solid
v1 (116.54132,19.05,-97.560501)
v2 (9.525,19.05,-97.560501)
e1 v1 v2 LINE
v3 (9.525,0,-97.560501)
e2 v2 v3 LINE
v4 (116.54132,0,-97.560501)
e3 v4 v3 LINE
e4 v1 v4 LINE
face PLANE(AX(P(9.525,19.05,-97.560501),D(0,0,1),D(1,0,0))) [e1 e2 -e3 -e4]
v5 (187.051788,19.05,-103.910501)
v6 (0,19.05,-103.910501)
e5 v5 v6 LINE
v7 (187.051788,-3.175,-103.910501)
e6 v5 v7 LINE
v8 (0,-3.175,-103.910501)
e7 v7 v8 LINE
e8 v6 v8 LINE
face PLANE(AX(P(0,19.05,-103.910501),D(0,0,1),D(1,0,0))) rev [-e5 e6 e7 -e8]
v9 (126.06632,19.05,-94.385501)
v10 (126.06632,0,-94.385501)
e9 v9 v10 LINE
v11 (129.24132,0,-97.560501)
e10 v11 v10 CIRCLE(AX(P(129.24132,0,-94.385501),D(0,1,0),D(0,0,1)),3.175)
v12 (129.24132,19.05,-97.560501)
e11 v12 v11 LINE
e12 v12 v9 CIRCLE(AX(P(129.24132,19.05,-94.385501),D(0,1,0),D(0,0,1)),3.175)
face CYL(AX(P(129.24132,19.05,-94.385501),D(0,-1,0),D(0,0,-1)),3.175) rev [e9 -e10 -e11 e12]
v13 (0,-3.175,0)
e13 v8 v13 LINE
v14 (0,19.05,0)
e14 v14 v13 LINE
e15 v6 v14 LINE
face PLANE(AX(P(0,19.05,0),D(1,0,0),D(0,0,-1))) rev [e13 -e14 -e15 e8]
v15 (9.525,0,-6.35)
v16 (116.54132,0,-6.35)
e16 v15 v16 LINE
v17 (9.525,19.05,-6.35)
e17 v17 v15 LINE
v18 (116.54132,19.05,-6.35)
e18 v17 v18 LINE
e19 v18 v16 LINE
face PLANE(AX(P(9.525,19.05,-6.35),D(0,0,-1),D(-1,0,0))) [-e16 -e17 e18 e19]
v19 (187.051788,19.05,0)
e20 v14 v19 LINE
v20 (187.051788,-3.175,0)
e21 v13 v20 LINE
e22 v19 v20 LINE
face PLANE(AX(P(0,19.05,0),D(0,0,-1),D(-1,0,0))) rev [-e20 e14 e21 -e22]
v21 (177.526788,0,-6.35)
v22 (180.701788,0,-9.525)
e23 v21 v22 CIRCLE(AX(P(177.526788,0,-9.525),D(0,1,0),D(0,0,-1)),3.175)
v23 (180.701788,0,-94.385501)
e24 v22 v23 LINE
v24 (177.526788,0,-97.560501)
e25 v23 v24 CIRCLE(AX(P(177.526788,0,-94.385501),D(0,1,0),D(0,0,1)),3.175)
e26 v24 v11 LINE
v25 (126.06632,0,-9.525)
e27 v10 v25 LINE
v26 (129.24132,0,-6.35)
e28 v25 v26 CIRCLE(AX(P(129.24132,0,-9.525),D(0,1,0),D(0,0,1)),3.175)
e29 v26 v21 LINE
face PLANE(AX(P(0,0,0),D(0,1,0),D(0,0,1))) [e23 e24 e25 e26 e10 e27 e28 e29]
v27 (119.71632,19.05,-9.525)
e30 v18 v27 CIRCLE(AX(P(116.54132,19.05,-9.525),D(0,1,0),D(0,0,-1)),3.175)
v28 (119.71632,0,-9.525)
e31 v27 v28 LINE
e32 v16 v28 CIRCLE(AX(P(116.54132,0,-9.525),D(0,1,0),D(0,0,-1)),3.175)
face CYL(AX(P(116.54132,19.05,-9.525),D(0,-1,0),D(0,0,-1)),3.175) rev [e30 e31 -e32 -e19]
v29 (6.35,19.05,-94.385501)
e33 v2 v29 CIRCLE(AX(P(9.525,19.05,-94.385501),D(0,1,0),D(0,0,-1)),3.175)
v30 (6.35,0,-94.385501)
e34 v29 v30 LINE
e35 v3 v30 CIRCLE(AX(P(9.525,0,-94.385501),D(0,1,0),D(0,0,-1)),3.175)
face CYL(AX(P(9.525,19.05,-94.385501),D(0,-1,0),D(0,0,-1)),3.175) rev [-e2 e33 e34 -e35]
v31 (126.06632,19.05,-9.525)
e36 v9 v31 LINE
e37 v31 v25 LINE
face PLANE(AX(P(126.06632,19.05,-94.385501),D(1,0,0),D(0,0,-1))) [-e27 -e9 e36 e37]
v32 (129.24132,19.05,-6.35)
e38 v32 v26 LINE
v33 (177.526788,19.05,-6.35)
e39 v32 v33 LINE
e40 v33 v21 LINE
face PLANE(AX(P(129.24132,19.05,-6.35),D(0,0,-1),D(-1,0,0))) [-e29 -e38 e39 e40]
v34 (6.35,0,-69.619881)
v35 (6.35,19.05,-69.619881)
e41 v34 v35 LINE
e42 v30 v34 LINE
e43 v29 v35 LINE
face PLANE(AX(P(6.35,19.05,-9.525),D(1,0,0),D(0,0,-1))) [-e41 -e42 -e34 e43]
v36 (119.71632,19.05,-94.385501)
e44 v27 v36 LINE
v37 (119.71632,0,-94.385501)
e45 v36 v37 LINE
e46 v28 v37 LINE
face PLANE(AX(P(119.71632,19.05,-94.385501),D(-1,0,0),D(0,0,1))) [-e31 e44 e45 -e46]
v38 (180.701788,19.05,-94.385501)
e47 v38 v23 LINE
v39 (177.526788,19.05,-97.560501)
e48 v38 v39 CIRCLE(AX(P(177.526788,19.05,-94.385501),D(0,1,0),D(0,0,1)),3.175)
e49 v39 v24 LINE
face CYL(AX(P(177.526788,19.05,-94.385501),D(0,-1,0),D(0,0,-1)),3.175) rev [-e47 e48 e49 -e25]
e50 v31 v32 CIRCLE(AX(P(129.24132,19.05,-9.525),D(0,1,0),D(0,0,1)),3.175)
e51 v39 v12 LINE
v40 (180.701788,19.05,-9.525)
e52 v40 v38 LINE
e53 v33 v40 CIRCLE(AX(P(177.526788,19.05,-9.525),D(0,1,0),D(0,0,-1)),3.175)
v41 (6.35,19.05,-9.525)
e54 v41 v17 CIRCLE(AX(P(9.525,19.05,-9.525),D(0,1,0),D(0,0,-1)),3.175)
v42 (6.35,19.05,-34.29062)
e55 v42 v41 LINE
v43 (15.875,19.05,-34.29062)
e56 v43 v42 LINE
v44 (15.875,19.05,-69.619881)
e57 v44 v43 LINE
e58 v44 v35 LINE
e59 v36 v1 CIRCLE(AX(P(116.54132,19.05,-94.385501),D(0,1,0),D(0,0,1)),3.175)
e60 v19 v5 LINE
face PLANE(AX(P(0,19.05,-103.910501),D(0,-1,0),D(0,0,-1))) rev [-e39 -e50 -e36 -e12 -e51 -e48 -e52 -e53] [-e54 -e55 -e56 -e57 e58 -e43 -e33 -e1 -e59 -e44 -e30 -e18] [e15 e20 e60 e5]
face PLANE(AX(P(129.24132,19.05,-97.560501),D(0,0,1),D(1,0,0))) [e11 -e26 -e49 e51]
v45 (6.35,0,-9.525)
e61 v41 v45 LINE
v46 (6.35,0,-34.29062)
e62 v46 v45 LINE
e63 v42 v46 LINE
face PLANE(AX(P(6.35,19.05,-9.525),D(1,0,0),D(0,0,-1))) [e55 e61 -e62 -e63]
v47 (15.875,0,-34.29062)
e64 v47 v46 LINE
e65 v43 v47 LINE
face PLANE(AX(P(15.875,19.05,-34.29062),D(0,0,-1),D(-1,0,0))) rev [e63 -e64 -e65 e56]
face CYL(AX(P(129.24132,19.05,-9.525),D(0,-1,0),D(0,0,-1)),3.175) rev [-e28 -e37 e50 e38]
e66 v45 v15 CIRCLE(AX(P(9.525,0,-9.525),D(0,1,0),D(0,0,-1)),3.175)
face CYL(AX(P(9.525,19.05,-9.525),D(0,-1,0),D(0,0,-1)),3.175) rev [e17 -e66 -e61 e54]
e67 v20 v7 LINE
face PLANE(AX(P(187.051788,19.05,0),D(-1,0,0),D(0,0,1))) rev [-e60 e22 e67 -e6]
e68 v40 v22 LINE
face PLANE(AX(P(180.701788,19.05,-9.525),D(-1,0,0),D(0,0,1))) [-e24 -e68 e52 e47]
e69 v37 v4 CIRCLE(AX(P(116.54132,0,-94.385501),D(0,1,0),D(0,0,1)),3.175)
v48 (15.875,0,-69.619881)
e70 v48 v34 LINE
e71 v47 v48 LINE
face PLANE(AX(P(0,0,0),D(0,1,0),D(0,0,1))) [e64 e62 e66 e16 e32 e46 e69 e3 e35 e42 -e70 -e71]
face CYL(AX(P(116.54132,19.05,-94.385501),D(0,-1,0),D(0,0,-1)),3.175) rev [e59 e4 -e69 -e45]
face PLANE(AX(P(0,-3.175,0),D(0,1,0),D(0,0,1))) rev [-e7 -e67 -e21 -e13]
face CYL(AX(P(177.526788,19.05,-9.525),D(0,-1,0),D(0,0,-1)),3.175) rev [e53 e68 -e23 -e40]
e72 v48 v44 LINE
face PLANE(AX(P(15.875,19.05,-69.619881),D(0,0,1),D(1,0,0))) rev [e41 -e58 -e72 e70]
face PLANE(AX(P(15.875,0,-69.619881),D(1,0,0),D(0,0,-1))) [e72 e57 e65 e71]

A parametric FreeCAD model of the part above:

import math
import FreeCAD as App
import Part
import Sketcher

V = App.Vector
Q = App.Units.Quantity

doc = App.newDocument("Part")
body = doc.addObject("PartDesign::Body", "Body")

# Sketch on XZ plane
sketch1 = body.newObject("Sketcher::SketchObject", "Sketch")
sketch1.AttachmentSupport = (doc.getObject("XZ_Plane"), [""])
sketch1.MapMode = "FlatFace"
sketch1.addGeometry([
    Part.LineSegment(V(0, -103.910501, 0), V(0, 0, 0)),  # 0
    Part.LineSegment(V(0, 0, 0), V(187.051788, 0, 0)),  # 1
    Part.LineSegment(V(187.051788, 0, 0), V(187.051788, -103.910501, 0)),  # 2
    Part.LineSegment(V(187.051788, -103.910501, 0), V(0, -103.910501, 0)),  # 3
    Part.LineSegment(V(116.54132, -6.35, 0), V(9.525, -6.35, 0)),  # 4
    Part.ArcOfCircle(Part.Circle(V(9.525, -9.525, 0), V(0, 0, 1), 3.175), math.radians(90), math.radians(180)),  # 5
    Part.LineSegment(V(6.35, -9.525, 0), V(6.35, -94.385501, 0)),  # 6
    Part.ArcOfCircle(Part.Circle(V(9.525, -94.385501, 0), V(0, 0, 1), 3.175), math.radians(-180), math.radians(-90)),  # 7
    Part.LineSegment(V(9.525, -97.560501, 0), V(116.54132, -97.560501, 0)),  # 8
    Part.ArcOfCircle(Part.Circle(V(116.54132, -94.385501, 0), V(0, 0, 1), 3.175), math.radians(-90), math.radians(0)),  # 9
    Part.LineSegment(V(119.71632, -94.385501, 0), V(119.71632, -9.525, 0)),  # 10
    Part.ArcOfCircle(Part.Circle(V(116.54132, -9.525, 0), V(0, 0, 1), 3.175), math.radians(0), math.radians(90)),  # 11
    Part.LineSegment(V(180.701788, -94.385501, 0), V(180.701788, -9.525, 0)),  # 12
    Part.ArcOfCircle(Part.Circle(V(177.526788, -9.525, 0), V(0, 0, 1), 3.175), math.radians(0), math.radians(90)),  # 13
    Part.LineSegment(V(177.526788, -6.35, 0), V(129.24132, -6.35, 0)),  # 14
    Part.ArcOfCircle(Part.Circle(V(129.24132, -9.525, 0), V(0, 0, 1), 3.175), math.radians(90), math.radians(180)),  # 15
    Part.LineSegment(V(126.06632, -9.525, 0), V(126.06632, -94.385501, 0)),  # 16
    Part.ArcOfCircle(Part.Circle(V(129.24132, -94.385501, 0), V(0, 0, 1), 3.175), math.radians(180), math.radians(270)),  # 17
    Part.LineSegment(V(129.24132, -97.560501, 0), V(177.526788, -97.560501, 0)),  # 18
    Part.ArcOfCircle(Part.Circle(V(177.526788, -94.385501, 0), V(0, 0, 1), 3.175), math.radians(-90), math.radians(0)),  # 19
], False)
sketch1.addConstraint([
    Sketcher.Constraint("Coincident", 0, 2, 1, 1),
    Sketcher.Constraint("Coincident", 1, 2, 2, 1),
    Sketcher.Constraint("Coincident", 2, 2, 3, 1),
    Sketcher.Constraint("Coincident", 3, 2, 0, 1),
    Sketcher.Constraint("Tangent", 4, 2, 5, 1),
    Sketcher.Constraint("Tangent", 5, 2, 6, 1),
    Sketcher.Constraint("Tangent", 6, 2, 7, 1),
    Sketcher.Constraint("Tangent", 7, 2, 8, 1),
    Sketcher.Constraint("Tangent", 8, 2, 9, 1),
    Sketcher.Constraint("Tangent", 9, 2, 10, 1),
    Sketcher.Constraint("Tangent", 10, 2, 11, 1),
    Sketcher.Constraint("Tangent", 11, 2, 4, 1),
    Sketcher.Constraint("Tangent", 12, 2, 13, 1),
    Sketcher.Constraint("Tangent", 13, 2, 14, 1),
    Sketcher.Constraint("Tangent", 14, 2, 15, 1),
    Sketcher.Constraint("Tangent", 15, 2, 16, 1),
    Sketcher.Constraint("Tangent", 16, 2, 17, 1),
    Sketcher.Constraint("Tangent", 17, 2, 18, 1),
    Sketcher.Constraint("Tangent", 18, 2, 19, 1),
    Sketcher.Constraint("Tangent", 19, 2, 12, 1),
    Sketcher.Constraint("Vertical", 0),
    Sketcher.Constraint("Horizontal", 1),
    Sketcher.Constraint("Vertical", 2),
    Sketcher.Constraint("Horizontal", 3),
    Sketcher.Constraint("Horizontal", 4),
    Sketcher.Constraint("Vertical", 6),
    Sketcher.Constraint("Horizontal", 8),
    Sketcher.Constraint("Vertical", 10),
    Sketcher.Constraint("Vertical", 12),
    Sketcher.Constraint("Horizontal", 14),
    Sketcher.Constraint("Vertical", 16),
    Sketcher.Constraint("Horizontal", 18),
    Sketcher.Constraint("Coincident", 0, 2, -1, 1),
    Sketcher.Constraint("Equal", 5, 7),
    Sketcher.Constraint("Equal", 7, 9),
    Sketcher.Constraint("Equal", 9, 11),
    Sketcher.Constraint("Equal", 11, 13),
    Sketcher.Constraint("Equal", 13, 15),
    Sketcher.Constraint("Equal", 15, 17),
    Sketcher.Constraint("Equal", 17, 19),
    Sketcher.Constraint("Horizontal", 11, 3, 13, 3),
    Sketcher.Constraint("Horizontal", 9, 3, 17, 3),
    Sketcher.Constraint("Radius", 5, Q("0.125 in")),
    Sketcher.Constraint("DistanceX", 11, 3, 15, 3, Q("0.5 in")),
    Sketcher.Constraint("DistanceY", 4, 2, -1, 1, Q("0.25 in")),
    Sketcher.Constraint("DistanceX", -1, 1, 5, 2, Q("0.25 in")),
    Sketcher.Constraint("DistanceY", 3, 2, 7, 2, Q("0.25 in")),
    Sketcher.Constraint("DistanceX", 12, 2, 1, 2, Q("0.25 in")),
    Sketcher.Constraint("DistanceY", 0, 1, 0, 2, Q("103.910501 mm")),
    Sketcher.Constraint("DistanceX", 4, 2, 4, 1, Q("107.01632 mm")),
    Sketcher.Constraint("DistanceX", 1, 1, 1, 2, Q("187.051788 mm")),
])
pad1 = body.newObject("PartDesign::Pad", "Pad")
pad1.Profile = sketch1
pad1.Length = Q("0.75 in")
pad1.Reversed = True

# Sketch on XZ plane
sketch2 = body.newObject("Sketcher::SketchObject", "Sketch001")
sketch2.AttachmentSupport = (doc.getObject("XZ_Plane"), [""])
sketch2.MapMode = "FlatFace"
sketch2.addGeometry([
    Part.LineSegment(V(0, -103.910501, 0), V(0, 0, 0)),
    Part.LineSegment(V(0, 0, 0), V(187.051788, 0, 0)),
    Part.LineSegment(V(187.051788, 0, 0), V(187.051788, -103.910501, 0)),
    Part.LineSegment(V(187.051788, -103.910501, 0), V(0, -103.910501, 0)),
], False)
sketch2.addConstraint([
    Sketcher.Constraint("Coincident", 0, 2, 1, 1),
    Sketcher.Constraint("Coincident", 1, 2, 2, 1),
    Sketcher.Constraint("Coincident", 2, 2, 3, 1),
    Sketcher.Constraint("Coincident", 3, 2, 0, 1),
    Sketcher.Constraint("Vertical", 0),
    Sketcher.Constraint("Horizontal", 1),
    Sketcher.Constraint("Vertical", 2),
    Sketcher.Constraint("Horizontal", 3),
    Sketcher.Constraint("Coincident", 0, 2, -1, 1),
    Sketcher.Constraint("DistanceY", 0, 1, 0, 2, Q("103.910501 mm")),
    Sketcher.Constraint("DistanceX", 1, 1, 1, 2, Q("187.051788 mm")),
])
pad2 = body.newObject("PartDesign::Pad", "Pad001")
pad2.Profile = sketch2
pad2.Length = Q("0.125 in")

# Sketch on YZ plane
sketch3 = body.newObject("Sketcher::SketchObject", "Sketch002")
sketch3.AttachmentSupport = (doc.getObject("YZ_Plane"), [""])
sketch3.MapMode = "FlatFace"
sketch3.AttachmentOffset = App.Placement(V(0, 0, 0.25 * 25.4), App.Rotation())
sketch3.addGeometry([
    Part.LineSegment(V(19.05, -34.29062, 0), V(0, -34.29062, 0)),
    Part.LineSegment(V(0, -34.29062, 0), V(0, -69.619881, 0)),
    Part.LineSegment(V(0, -69.619881, 0), V(19.05, -69.619881, 0)),
    Part.LineSegment(V(19.05, -69.619881, 0), V(19.05, -34.29062, 0)),
], False)
sketch3.addConstraint([
    Sketcher.Constraint("Coincident", 0, 2, 1, 1),
    Sketcher.Constraint("Coincident", 1, 2, 2, 1),
    Sketcher.Constraint("Coincident", 2, 2, 3, 1),
    Sketcher.Constraint("Coincident", 3, 2, 0, 1),
    Sketcher.Constraint("Horizontal", 0),
    Sketcher.Constraint("Vertical", 1),
    Sketcher.Constraint("Horizontal", 2),
    Sketcher.Constraint("Vertical", 3),
    Sketcher.Constraint("PointOnObject", 0, 2, -2),
    Sketcher.Constraint("DistanceX", 0, 2, 0, 1, Q("0.75 in")),
    Sketcher.Constraint("DistanceY", 1, 2, 1, 1, Q("35.329261 mm")),
    Sketcher.Constraint("DistanceY", 0, 2, -1, 1, Q("34.29062 mm")),
])
pad3 = body.newObject("PartDesign::Pad", "Pad002")
pad3.Profile = sketch3
pad3.Length = Q("0.375 in")

doc.recompute()
